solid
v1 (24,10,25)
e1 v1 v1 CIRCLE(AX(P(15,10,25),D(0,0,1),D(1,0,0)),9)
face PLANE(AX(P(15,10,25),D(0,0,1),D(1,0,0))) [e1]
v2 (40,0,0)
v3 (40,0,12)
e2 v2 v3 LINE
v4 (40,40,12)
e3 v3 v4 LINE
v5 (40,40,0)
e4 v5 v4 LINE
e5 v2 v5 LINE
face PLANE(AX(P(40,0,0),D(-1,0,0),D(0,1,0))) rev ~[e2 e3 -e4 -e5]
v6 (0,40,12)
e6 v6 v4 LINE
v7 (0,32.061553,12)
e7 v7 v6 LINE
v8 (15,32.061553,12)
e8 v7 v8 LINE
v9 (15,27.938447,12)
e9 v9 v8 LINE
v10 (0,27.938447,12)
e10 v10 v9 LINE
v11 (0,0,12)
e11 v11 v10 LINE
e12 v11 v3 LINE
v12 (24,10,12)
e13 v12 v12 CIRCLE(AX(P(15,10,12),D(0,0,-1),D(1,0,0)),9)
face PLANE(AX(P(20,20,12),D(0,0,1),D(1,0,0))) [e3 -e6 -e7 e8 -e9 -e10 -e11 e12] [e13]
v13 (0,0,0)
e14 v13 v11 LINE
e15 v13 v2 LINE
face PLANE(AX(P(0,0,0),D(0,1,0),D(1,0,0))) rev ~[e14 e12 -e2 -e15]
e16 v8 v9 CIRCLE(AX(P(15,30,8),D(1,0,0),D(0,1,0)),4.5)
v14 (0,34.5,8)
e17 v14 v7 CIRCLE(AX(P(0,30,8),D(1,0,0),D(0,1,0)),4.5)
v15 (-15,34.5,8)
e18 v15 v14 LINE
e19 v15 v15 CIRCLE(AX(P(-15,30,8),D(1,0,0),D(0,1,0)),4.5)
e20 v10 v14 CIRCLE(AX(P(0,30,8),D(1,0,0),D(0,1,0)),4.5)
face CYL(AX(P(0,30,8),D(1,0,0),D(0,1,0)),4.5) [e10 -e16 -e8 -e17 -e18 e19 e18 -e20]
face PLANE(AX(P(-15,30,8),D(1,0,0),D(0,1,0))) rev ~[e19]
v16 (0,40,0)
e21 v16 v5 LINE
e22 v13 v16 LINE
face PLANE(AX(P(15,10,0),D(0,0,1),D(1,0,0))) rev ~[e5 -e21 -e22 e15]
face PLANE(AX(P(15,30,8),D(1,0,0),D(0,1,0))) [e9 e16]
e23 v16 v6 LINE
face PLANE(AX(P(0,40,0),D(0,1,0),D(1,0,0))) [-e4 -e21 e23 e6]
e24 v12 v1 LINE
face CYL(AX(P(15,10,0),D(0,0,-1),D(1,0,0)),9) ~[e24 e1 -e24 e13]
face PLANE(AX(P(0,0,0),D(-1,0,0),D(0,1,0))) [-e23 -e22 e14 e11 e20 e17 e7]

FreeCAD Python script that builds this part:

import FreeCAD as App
import Part
import Sketcher
from FreeCAD import Vector
Q = App.Units.Quantity


def add_polygon(sketch, points):
    """Adds a closed chain of lines whose ends are joined by coincident constraints."""
    first, n = sketch.GeometryCount, len(points)
    for a, b in zip(points, points[1:] + points[:1]):
        sketch.addGeometry(Part.LineSegment(App.Vector(*a, 0), App.Vector(*b, 0)), False)
    for i in range(n):
        sketch.addConstraint(Sketcher.Constraint("Coincident", first + i, 2, first + (i + 1) % n, 1))

doc = App.newDocument("Part")
body = doc.addObject("PartDesign::Body", "Body")

# Sketch on XY plane
sketch1 = body.newObject("Sketcher::SketchObject", "Sketch")
sketch1.AttachmentSupport = (doc.getObject("XY_Plane"), [""])
sketch1.MapMode = "FlatFace"
add_polygon(sketch1, [(0, 40), (0, 0), (40, 0), (40, 40)])  # lines 0-3
sketch1.addConstraint(Sketcher.Constraint("Vertical", 0))
sketch1.addConstraint(Sketcher.Constraint("Horizontal", 1))
sketch1.addConstraint(Sketcher.Constraint("Vertical", 2))
sketch1.addConstraint(Sketcher.Constraint("Horizontal", 3))
sketch1.addConstraint(Sketcher.Constraint("Coincident", 0, 2, -1, 1))
sketch1.addConstraint(Sketcher.Constraint("Equal", 3, 0))
sketch1.addConstraint(Sketcher.Constraint("DistanceX", 1, 1, 1, 2, Q("40 mm")))
pad1 = body.newObject("PartDesign::Pad", "Pad")
pad1.Profile = sketch1
pad1.Length = 12

# Sketch on XY plane
sketch2 = body.newObject("Sketcher::SketchObject", "Sketch001")
sketch2.AttachmentSupport = (doc.getObject("XY_Plane"), [""])
sketch2.MapMode = "FlatFace"
sketch2.addGeometry(Part.Circle(Vector(15, 10, 0), Vector(0, 0, 1), 9), False)
sketch2.addConstraint(Sketcher.Constraint("Diameter", 0, Q("18 mm")))
sketch2.addConstraint(Sketcher.Constraint("DistanceX", -1, 1, 0, 3, Q("15 mm")))
sketch2.addConstraint(Sketcher.Constraint("DistanceY", -1, 1, 0, 3, Q("10 mm")))
pad2 = body.newObject("PartDesign::Pad", "Pad001")
pad2.Profile = sketch2
pad2.Length = 25

# Sketch on YZ plane
sketch3 = body.newObject("Sketcher::SketchObject", "Sketch002")
sketch3.AttachmentSupport = (doc.getObject("YZ_Plane"), [""])
sketch3.MapMode = "FlatFace"
sketch3.addGeometry(Part.Circle(Vector(30, 8, 0), Vector(0, 0, 1), 4.5), False)
sketch3.addConstraint(Sketcher.Constraint("Diameter", 0, Q("9 mm")))
sketch3.addConstraint(Sketcher.Constraint("DistanceX", -1, 1, 0, 3, Q("30 mm")))
sketch3.addConstraint(Sketcher.Constraint("DistanceY", -1, 1, 0, 3, Q("8 mm")))
pad3 = body.newObject("PartDesign::Pad", "Pad002")
pad3.Profile = sketch3
pad3.Length = 30
pad3.Midplane = True

doc.recompute()
